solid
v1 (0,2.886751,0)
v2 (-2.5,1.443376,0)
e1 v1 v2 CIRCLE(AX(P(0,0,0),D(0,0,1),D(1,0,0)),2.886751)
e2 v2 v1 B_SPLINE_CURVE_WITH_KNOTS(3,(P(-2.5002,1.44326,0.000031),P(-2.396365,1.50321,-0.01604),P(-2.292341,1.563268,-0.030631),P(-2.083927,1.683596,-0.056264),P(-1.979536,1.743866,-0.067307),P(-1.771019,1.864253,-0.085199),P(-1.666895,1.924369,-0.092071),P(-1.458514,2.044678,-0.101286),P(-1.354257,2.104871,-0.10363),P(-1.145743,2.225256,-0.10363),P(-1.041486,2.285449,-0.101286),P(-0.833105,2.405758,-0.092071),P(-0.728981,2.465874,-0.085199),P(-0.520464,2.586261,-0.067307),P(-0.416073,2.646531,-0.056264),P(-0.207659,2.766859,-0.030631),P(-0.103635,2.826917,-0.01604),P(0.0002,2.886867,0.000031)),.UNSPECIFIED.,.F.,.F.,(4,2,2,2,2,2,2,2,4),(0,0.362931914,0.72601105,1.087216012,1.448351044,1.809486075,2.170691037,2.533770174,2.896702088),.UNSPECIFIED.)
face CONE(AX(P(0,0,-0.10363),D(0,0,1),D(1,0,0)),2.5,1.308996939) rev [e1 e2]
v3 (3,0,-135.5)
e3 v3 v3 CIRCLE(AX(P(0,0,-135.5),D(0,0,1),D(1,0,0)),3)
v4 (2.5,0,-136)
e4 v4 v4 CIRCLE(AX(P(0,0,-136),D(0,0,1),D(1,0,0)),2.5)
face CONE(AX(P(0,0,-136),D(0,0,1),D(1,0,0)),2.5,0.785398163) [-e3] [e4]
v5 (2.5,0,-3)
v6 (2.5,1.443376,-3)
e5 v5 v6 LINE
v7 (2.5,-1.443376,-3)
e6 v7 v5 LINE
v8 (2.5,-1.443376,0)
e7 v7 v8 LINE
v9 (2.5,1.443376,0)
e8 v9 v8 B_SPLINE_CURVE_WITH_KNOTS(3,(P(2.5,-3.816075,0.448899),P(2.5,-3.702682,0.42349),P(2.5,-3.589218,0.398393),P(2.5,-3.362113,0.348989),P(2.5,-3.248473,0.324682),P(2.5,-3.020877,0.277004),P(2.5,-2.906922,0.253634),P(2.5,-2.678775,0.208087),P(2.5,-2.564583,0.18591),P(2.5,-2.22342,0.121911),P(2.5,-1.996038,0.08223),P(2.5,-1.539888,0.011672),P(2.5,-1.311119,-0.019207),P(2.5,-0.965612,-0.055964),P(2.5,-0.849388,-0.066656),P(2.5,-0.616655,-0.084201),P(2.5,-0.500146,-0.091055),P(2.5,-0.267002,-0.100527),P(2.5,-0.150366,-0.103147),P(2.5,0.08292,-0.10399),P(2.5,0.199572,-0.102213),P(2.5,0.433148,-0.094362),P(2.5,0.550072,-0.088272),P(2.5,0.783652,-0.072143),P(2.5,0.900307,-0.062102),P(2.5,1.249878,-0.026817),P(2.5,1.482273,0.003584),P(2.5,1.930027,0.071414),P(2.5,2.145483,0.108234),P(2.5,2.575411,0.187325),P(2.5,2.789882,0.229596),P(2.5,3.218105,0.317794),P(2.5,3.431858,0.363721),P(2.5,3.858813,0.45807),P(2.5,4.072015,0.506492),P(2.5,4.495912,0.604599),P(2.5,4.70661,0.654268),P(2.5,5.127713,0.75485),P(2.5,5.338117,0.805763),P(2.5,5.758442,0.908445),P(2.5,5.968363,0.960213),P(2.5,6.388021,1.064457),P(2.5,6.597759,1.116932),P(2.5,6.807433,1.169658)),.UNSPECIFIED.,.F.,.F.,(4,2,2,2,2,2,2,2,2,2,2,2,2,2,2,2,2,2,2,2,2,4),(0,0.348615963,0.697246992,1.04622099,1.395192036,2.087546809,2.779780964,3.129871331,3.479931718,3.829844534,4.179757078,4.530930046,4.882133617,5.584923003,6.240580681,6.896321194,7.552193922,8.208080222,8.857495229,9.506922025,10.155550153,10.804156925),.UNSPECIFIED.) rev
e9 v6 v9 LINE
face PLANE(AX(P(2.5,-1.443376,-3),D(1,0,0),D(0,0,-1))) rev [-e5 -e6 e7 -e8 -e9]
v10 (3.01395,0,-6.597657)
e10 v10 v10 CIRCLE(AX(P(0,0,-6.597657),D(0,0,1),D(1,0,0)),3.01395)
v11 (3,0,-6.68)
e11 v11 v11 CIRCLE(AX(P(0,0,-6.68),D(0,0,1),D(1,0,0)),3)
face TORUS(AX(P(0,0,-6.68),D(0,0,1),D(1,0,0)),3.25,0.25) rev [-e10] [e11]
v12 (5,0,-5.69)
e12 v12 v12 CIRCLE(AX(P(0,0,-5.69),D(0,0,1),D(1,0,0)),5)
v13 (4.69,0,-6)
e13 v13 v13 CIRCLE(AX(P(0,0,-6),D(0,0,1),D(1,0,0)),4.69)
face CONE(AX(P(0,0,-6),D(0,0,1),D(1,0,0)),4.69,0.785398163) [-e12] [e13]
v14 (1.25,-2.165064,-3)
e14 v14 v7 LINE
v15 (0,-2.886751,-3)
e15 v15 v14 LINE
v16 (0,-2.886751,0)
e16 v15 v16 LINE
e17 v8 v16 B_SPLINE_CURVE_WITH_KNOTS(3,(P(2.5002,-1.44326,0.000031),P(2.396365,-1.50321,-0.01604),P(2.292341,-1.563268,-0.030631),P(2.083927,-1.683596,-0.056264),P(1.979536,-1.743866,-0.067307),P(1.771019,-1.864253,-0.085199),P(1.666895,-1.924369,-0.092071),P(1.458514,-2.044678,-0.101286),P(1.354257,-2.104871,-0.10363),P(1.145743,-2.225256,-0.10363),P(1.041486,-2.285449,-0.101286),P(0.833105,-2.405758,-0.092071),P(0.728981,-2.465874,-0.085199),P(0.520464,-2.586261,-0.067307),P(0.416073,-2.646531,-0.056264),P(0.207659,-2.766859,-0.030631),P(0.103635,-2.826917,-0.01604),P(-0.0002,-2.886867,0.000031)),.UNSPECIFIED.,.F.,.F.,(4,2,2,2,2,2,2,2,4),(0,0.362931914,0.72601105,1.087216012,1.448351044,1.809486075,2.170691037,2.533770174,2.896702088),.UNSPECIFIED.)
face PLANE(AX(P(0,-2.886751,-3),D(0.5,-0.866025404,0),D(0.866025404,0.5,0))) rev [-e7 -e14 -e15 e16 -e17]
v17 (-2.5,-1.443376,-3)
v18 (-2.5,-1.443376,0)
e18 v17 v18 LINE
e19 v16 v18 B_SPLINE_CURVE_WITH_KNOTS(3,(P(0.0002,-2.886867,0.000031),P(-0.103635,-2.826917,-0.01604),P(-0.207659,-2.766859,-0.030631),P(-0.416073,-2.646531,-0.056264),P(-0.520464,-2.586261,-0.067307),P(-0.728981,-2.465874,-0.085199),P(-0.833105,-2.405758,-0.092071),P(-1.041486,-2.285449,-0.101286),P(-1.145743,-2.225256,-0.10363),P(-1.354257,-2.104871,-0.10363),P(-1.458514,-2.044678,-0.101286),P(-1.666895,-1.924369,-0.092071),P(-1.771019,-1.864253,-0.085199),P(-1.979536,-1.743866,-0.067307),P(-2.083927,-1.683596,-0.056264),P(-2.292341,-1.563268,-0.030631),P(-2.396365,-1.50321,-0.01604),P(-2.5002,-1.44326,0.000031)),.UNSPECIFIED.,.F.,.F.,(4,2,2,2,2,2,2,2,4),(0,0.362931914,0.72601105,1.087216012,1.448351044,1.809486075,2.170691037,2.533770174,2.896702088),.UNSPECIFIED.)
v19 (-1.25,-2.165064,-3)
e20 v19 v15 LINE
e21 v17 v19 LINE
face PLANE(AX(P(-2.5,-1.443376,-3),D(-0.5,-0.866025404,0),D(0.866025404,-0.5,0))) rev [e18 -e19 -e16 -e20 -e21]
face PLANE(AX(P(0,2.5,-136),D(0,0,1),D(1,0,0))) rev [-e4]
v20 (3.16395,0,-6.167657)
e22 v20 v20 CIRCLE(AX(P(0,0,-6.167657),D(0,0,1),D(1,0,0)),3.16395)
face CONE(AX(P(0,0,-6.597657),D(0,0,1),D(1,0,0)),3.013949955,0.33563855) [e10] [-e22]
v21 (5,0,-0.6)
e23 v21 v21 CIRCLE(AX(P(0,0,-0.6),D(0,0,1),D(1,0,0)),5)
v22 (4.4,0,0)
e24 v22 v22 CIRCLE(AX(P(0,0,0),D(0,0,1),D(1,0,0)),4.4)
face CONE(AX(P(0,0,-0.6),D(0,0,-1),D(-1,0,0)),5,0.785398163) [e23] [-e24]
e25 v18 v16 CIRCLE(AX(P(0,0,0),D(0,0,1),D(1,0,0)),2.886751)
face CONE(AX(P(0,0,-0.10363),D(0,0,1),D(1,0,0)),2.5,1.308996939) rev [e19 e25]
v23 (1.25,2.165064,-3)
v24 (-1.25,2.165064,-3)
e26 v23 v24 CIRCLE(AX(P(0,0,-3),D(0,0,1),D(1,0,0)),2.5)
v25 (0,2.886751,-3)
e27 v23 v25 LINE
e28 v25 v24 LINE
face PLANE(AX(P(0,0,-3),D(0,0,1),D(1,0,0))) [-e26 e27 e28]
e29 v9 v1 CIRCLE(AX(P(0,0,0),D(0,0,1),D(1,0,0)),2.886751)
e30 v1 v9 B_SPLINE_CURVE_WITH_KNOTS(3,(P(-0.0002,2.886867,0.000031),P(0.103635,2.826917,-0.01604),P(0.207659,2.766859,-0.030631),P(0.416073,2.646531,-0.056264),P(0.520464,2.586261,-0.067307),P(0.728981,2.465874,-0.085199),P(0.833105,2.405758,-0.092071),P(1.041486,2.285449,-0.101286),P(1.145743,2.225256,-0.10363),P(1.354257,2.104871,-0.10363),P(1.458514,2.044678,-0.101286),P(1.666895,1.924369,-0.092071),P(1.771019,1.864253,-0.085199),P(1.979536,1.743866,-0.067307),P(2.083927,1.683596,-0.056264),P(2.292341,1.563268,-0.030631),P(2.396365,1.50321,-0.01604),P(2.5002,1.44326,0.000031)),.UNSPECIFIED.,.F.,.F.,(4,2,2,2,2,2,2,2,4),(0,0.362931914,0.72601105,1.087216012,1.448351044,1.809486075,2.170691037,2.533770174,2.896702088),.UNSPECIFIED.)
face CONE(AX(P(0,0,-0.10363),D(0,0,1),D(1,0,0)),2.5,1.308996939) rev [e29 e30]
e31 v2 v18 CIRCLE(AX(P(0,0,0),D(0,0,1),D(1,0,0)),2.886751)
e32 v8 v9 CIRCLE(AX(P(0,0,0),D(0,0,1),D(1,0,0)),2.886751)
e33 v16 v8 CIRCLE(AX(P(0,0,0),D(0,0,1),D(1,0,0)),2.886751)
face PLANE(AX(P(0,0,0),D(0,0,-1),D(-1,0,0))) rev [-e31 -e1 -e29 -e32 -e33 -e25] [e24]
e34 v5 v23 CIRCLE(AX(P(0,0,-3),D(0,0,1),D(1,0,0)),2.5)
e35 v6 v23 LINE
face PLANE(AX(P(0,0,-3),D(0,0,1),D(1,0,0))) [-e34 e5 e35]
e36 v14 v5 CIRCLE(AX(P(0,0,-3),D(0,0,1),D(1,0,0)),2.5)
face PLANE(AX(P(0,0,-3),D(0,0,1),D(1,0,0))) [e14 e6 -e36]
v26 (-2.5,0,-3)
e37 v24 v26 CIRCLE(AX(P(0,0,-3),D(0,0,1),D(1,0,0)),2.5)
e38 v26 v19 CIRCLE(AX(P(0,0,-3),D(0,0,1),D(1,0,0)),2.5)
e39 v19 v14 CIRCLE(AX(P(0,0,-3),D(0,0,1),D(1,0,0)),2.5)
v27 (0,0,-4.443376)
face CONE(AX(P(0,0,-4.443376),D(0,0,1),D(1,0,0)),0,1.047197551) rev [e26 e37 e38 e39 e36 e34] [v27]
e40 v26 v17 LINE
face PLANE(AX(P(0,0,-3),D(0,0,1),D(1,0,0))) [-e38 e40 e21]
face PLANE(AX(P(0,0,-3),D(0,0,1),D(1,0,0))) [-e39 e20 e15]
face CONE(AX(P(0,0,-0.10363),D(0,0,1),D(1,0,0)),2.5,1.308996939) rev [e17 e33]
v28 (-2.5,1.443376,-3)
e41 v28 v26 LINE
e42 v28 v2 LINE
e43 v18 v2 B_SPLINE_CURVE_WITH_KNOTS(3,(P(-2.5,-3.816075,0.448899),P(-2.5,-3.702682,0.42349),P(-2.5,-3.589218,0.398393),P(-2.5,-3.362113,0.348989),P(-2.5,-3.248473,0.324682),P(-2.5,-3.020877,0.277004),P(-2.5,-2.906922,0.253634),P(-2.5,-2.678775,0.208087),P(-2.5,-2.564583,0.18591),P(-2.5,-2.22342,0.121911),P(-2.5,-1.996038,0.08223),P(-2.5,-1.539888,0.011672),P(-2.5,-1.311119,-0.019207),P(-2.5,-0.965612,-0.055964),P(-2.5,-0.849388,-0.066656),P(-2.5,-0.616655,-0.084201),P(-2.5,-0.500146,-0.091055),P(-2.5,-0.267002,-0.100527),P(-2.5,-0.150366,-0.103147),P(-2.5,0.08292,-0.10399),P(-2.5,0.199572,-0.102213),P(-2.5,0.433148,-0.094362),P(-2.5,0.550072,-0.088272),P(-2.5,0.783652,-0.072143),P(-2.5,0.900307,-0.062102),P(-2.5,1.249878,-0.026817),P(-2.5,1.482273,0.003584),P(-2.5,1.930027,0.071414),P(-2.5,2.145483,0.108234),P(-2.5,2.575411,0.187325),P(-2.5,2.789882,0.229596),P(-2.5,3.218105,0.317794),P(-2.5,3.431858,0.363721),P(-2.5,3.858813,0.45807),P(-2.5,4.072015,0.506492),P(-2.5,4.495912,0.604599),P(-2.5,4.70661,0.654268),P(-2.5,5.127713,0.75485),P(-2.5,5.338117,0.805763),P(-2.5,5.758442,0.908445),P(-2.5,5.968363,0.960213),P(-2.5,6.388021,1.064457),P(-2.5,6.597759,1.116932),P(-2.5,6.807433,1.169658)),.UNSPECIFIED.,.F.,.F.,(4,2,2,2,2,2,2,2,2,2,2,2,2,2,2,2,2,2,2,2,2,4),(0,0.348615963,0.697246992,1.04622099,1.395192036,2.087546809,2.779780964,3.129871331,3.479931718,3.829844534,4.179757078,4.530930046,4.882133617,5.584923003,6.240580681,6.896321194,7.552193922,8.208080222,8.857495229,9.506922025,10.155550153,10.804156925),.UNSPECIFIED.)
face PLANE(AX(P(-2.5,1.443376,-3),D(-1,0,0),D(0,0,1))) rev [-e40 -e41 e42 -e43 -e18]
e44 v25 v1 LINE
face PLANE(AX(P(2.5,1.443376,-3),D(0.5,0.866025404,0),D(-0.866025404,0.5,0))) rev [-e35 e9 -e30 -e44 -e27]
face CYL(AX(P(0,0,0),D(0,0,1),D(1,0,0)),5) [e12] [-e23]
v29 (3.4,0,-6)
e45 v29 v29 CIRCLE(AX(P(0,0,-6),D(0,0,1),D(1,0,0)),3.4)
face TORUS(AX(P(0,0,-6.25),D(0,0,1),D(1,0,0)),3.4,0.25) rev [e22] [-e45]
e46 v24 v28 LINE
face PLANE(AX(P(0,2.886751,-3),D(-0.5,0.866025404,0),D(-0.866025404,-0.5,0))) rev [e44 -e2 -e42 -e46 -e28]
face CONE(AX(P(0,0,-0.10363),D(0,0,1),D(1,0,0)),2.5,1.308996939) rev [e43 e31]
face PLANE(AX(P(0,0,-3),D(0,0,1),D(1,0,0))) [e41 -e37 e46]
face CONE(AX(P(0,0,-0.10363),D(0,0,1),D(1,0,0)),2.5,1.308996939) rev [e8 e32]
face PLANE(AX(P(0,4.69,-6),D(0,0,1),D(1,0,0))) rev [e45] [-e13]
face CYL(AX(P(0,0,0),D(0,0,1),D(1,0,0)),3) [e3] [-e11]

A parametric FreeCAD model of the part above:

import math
import FreeCAD as App
import Part
import Sketcher

V = App.Vector
Q = App.Units.Quantity

doc = App.newDocument("Part")
body = doc.addObject("PartDesign::Body", "Body")

# Sketch on YZ plane
sketch1 = body.newObject("Sketcher::SketchObject", "Sketch")
sketch1.AttachmentSupport = (doc.getObject("YZ_Plane"), [""])
sketch1.MapMode = "FlatFace"
sketch1.addGeometry(Part.LineSegment(V(4.4, 0, 0), V(0, 0, 0)), False)
sketch1.addGeometry(Part.LineSegment(V(0, 0, 0), V(0, -136, 0)), False)
sketch1.addGeometry(Part.LineSegment(V(0, -136, 0), V(2.5, -136, 0)), False)
sketch1.addGeometry(Part.LineSegment(V(2.5, -136, 0), V(3, -135.5, 0)), False)
sketch1.addGeometry(Part.LineSegment(V(3, -135.5, 0), V(3, -6.68, 0)), False)
sketch1.addGeometry(Part.ArcOfCircle(Part.Circle(V(3.25, -6.68, 0), V(0, 0, 1), 0.25), math.radians(160.77), math.radians(180)), False)
sketch1.addGeometry(Part.LineSegment(V(3.01, -6.6, 0), V(3.16, -6.17, 0)), False)
sketch1.addGeometry(Part.ArcOfCircle(Part.Circle(V(3.4, -6.25, 0), V(0, 0, 1), 0.25), math.radians(90), math.radians(161)), False)
sketch1.addGeometry(Part.LineSegment(V(3.4, -6, 0), V(4.69, -6, 0)), False)
sketch1.addGeometry(Part.LineSegment(V(4.69, -6, 0), V(5, -5.69, 0)), False)
sketch1.addGeometry(Part.LineSegment(V(5, -5.69, 0), V(5, -0.6, 0)), False)
sketch1.addGeometry(Part.LineSegment(V(5, -0.6, 0), V(4.4, 0, 0)), False)
sketch1.addConstraint(Sketcher.Constraint("Coincident", 0, 2, 1, 1))
sketch1.addConstraint(Sketcher.Constraint("Coincident", 1, 2, 2, 1))
sketch1.addConstraint(Sketcher.Constraint("Coincident", 2, 2, 3, 1))
sketch1.addConstraint(Sketcher.Constraint("Coincident", 3, 2, 4, 1))
sketch1.addConstraint(Sketcher.Constraint("Tangent", 4, 2, 5, 2))
sketch1.addConstraint(Sketcher.Constraint("Tangent", 5, 1, 6, 1))
sketch1.addConstraint(Sketcher.Constraint("Tangent", 6, 2, 7, 2))
sketch1.addConstraint(Sketcher.Constraint("Tangent", 7, 1, 8, 1))
sketch1.addConstraint(Sketcher.Constraint("Coincident", 8, 2, 9, 1))
sketch1.addConstraint(Sketcher.Constraint("Coincident", 9, 2, 10, 1))
sketch1.addConstraint(Sketcher.Constraint("Coincident", 10, 2, 11, 1))
sketch1.addConstraint(Sketcher.Constraint("Coincident", 11, 2, 0, 1))
sketch1.addConstraint(Sketcher.Constraint("Horizontal", 0))
sketch1.addConstraint(Sketcher.Constraint("Vertical", 1))
sketch1.addConstraint(Sketcher.Constraint("Horizontal", 2))
sketch1.addConstraint(Sketcher.Constraint("Vertical", 4))
sketch1.addConstraint(Sketcher.Constraint("Horizontal", 8))
sketch1.addConstraint(Sketcher.Constraint("Vertical", 10))
sketch1.addConstraint(Sketcher.Constraint("Coincident", 0, 2, -1, 1))
sketch1.addConstraint(Sketcher.Constraint("Equal", 5, 7))
sketch1.addConstraint(Sketcher.Constraint("Parallel", 3, 9))
sketch1.addConstraint(Sketcher.Constraint("Perpendicular", 9, 11))
sketch1.addConstraint(Sketcher.Constraint("DistanceY", 1, 2, 1, 1, 136.0))
sketch1.addConstraint(Sketcher.Constraint("Angle", 3, Q("45 deg")))
sketch1.addConstraint(Sketcher.Constraint("Radius", 5, 0.25))
sketch1.addConstraint(Sketcher.Constraint("DistanceX", 0, 2, 0, 1, 4.4))
sketch1.addConstraint(Sketcher.Constraint("DistanceX", 2, 1, 2, 2, 2.5))
sketch1.addConstraint(Sketcher.Constraint("DistanceX", -1, 1, 3, 2, 3.0))
sketch1.addConstraint(Sketcher.Constraint("DistanceY", 7, 1, -1, 1, 6.0))
sketch1.addConstraint(Sketcher.Constraint("DistanceX", -1, 1, 9, 2, 5.0))
sketch1.addConstraint(Sketcher.Constraint("DistanceX", 7, 1, 11, 2, 1.0))
sketch1.addConstraint(Sketcher.Constraint("DistanceX", 8, 1, 8, 2, 1.29))
sketch1.addConstraint(Sketcher.Constraint("DistanceY", 4, 1, 4, 2, 128.82))
revolution = body.newObject("PartDesign::Revolution", "Revolution")
revolution.Profile = sketch1
revolution.ReferenceAxis = (sketch1, ["V_Axis"])
revolution.Angle = 360

# Sketch on XY plane
sketch2 = body.newObject("Sketcher::SketchObject", "Sketch001")
sketch2.AttachmentSupport = (doc.getObject("XY_Plane"), [""])
sketch2.MapMode = "FlatFace"
sketch2.addGeometry(Part.LineSegment(V(0, 2.9, 0), V(-2.5, 1.4, 0)), False)
sketch2.addGeometry(Part.LineSegment(V(-2.5, 1.4, 0), V(-2.5, -1.4, 0)), False)
sketch2.addGeometry(Part.LineSegment(V(-2.5, -1.4, 0), V(0, -2.9, 0)), False)
sketch2.addGeometry(Part.LineSegment(V(0, -2.9, 0), V(2.5, -1.4, 0)), False)
sketch2.addGeometry(Part.LineSegment(V(2.5, -1.4, 0), V(2.5, 1.4, 0)), False)
sketch2.addGeometry(Part.LineSegment(V(2.5, 1.4, 0), V(0, 2.9, 0)), False)
sketch2.addConstraint(Sketcher.Constraint("Coincident", 0, 2, 1, 1))
sketch2.addConstraint(Sketcher.Constraint("Coincident", 1, 2, 2, 1))
sketch2.addConstraint(Sketcher.Constraint("Coincident", 2, 2, 3, 1))
sketch2.addConstraint(Sketcher.Constraint("Coincident", 3, 2, 4, 1))
sketch2.addConstraint(Sketcher.Constraint("Coincident", 4, 2, 5, 1))
sketch2.addConstraint(Sketcher.Constraint("Coincident", 5, 2, 0, 1))
sketch2.addConstraint(Sketcher.Constraint("Vertical", 1))
sketch2.addConstraint(Sketcher.Constraint("Vertical", 4))
sketch2.addConstraint(Sketcher.Constraint("Symmetric", 0, 2, 3, 2, -1, 1))
sketch2.addConstraint(Sketcher.Constraint("Symmetric", 2, 2, 5, 2, -1, 1))
sketch2.addConstraint(Sketcher.Constraint("PointOnObject", 2, 2, -2))
sketch2.addConstraint(Sketcher.Constraint("Parallel", 2, 5))
sketch2.addConstraint(Sketcher.Constraint("Horizontal", 1, 2, 3, 2))
sketch2.addConstraint(Sketcher.Constraint("Angle", 0, Q("-150 deg")))
sketch2.addConstraint(Sketcher.Constraint("DistanceX", 1, 2, 3, 2, 5.0))
sketch2.addConstraint(Sketcher.Constraint("DistanceY", 1, 2, 1, 1, 2.886751))
pocket1 = body.newObject("PartDesign::Pocket", "Pocket")
pocket1.Profile = sketch2
pocket1.Length = 3

# Sketch on YZ plane
sketch3 = body.newObject("Sketcher::SketchObject", "Sketch002")
sketch3.AttachmentSupport = (doc.getObject("YZ_Plane"), [""])
sketch3.MapMode = "FlatFace"
sketch3.addGeometry(Part.LineSegment(V(2.5, -3, 0), V(0, -3, 0)), False)
sketch3.addGeometry(Part.LineSegment(V(0, -3, 0), V(0, -4.4, 0)), False)
sketch3.addGeometry(Part.LineSegment(V(0, -4.4, 0), V(2.5, -3, 0)), False)
sketch3.addConstraint(Sketcher.Constraint("Coincident", 0, 2, 1, 1))
sketch3.addConstraint(Sketcher.Constraint("Coincident", 1, 2, 2, 1))
sketch3.addConstraint(Sketcher.Constraint("Coincident", 2, 2, 0, 1))
sketch3.addConstraint(Sketcher.Constraint("Horizontal", 0))
sketch3.addConstraint(Sketcher.Constraint("Vertical", 1))
sketch3.addConstraint(Sketcher.Constraint("PointOnObject", 0, 2, -2))
sketch3.addConstraint(Sketcher.Constraint("Angle", 2, Q("30 deg")))
sketch3.addConstraint(Sketcher.Constraint("DistanceX", 0, 2, 0, 1, 2.5))
sketch3.addConstraint(Sketcher.Constraint("DistanceY", 0, 2, -1, 1, 3.0))
groove = body.newObject("PartDesign::Groove", "Groove")
groove.Profile = sketch3
groove.ReferenceAxis = (sketch3, ["V_Axis"])
groove.Angle = 360

# Sketch on YZ plane
sketch4 = body.newObject("Sketcher::SketchObject", "Sketch003")
sketch4.AttachmentSupport = (doc.getObject("YZ_Plane"), [""])
sketch4.MapMode = "FlatFace"
sketch4.addGeometry(Part.LineSegment(V(2.89, 0, 0), V(2.5, 0, 0)), False)
sketch4.addGeometry(Part.LineSegment(V(2.5, 0, 0), V(2.5, -0.1, 0)), False)
sketch4.addGeometry(Part.LineSegment(V(2.5, -0.1, 0), V(2.89, 0, 0)), False)
sketch4.addConstraint(Sketcher.Constraint("Coincident", 0, 2, 1, 1))
sketch4.addConstraint(Sketcher.Constraint("Coincident", 1, 2, 2, 1))
sketch4.addConstraint(Sketcher.Constraint("Coincident", 2, 2, 0, 1))
sketch4.addConstraint(Sketcher.Constraint("Horizontal", 0))
sketch4.addConstraint(Sketcher.Constraint("Vertical", 1))
sketch4.addConstraint(Sketcher.Constraint("PointOnObject", 0, 2, -1))
sketch4.addConstraint(Sketcher.Constraint("Angle", 2, Q("15 deg")))
sketch4.addConstraint(Sketcher.Constraint("DistanceX", -1, 1, 0, 2, 2.5))
sketch4.addConstraint(Sketcher.Constraint("DistanceX", 0, 2, 0, 1, 0.386751))
groove2 = body.newObject("PartDesign::Groove", "Groove001")
groove2.Profile = sketch4
groove2.ReferenceAxis = (sketch4, ["V_Axis"])
groove2.Angle = 360

doc.recompute()
